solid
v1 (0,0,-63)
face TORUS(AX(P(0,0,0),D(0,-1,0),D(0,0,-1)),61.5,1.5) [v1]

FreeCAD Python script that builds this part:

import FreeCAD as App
import Part
import Sketcher

doc = App.newDocument("Part")
body = doc.addObject("PartDesign::Body", "Body")

sketch1 = body.newObject("Sketcher::SketchObject", "Sketch")
sketch1.AttachmentSupport = (doc.getObject("XY_Plane"), [""])
sketch1.MapMode = "FlatFace"
sketch1.addGeometry(Part.Circle(App.Vector(-61.5, 0, 0), App.Vector(0, 0, 1), 1.5), False)
sketch1.addConstraint(Sketcher.Constraint("PointOnObject", 0, 3, -1))
sketch1.addConstraint(Sketcher.Constraint("Diameter", 0, 3.0))
sketch1.addConstraint(Sketcher.Constraint("DistanceX", 0, 3, -1, 1, 61.5))
revolution = body.newObject("PartDesign::Revolution", "Revolution")
revolution.Profile = sketch1
revolution.ReferenceAxis = (sketch1, ["V_Axis"])
revolution.Angle = 360

doc.recompute()
